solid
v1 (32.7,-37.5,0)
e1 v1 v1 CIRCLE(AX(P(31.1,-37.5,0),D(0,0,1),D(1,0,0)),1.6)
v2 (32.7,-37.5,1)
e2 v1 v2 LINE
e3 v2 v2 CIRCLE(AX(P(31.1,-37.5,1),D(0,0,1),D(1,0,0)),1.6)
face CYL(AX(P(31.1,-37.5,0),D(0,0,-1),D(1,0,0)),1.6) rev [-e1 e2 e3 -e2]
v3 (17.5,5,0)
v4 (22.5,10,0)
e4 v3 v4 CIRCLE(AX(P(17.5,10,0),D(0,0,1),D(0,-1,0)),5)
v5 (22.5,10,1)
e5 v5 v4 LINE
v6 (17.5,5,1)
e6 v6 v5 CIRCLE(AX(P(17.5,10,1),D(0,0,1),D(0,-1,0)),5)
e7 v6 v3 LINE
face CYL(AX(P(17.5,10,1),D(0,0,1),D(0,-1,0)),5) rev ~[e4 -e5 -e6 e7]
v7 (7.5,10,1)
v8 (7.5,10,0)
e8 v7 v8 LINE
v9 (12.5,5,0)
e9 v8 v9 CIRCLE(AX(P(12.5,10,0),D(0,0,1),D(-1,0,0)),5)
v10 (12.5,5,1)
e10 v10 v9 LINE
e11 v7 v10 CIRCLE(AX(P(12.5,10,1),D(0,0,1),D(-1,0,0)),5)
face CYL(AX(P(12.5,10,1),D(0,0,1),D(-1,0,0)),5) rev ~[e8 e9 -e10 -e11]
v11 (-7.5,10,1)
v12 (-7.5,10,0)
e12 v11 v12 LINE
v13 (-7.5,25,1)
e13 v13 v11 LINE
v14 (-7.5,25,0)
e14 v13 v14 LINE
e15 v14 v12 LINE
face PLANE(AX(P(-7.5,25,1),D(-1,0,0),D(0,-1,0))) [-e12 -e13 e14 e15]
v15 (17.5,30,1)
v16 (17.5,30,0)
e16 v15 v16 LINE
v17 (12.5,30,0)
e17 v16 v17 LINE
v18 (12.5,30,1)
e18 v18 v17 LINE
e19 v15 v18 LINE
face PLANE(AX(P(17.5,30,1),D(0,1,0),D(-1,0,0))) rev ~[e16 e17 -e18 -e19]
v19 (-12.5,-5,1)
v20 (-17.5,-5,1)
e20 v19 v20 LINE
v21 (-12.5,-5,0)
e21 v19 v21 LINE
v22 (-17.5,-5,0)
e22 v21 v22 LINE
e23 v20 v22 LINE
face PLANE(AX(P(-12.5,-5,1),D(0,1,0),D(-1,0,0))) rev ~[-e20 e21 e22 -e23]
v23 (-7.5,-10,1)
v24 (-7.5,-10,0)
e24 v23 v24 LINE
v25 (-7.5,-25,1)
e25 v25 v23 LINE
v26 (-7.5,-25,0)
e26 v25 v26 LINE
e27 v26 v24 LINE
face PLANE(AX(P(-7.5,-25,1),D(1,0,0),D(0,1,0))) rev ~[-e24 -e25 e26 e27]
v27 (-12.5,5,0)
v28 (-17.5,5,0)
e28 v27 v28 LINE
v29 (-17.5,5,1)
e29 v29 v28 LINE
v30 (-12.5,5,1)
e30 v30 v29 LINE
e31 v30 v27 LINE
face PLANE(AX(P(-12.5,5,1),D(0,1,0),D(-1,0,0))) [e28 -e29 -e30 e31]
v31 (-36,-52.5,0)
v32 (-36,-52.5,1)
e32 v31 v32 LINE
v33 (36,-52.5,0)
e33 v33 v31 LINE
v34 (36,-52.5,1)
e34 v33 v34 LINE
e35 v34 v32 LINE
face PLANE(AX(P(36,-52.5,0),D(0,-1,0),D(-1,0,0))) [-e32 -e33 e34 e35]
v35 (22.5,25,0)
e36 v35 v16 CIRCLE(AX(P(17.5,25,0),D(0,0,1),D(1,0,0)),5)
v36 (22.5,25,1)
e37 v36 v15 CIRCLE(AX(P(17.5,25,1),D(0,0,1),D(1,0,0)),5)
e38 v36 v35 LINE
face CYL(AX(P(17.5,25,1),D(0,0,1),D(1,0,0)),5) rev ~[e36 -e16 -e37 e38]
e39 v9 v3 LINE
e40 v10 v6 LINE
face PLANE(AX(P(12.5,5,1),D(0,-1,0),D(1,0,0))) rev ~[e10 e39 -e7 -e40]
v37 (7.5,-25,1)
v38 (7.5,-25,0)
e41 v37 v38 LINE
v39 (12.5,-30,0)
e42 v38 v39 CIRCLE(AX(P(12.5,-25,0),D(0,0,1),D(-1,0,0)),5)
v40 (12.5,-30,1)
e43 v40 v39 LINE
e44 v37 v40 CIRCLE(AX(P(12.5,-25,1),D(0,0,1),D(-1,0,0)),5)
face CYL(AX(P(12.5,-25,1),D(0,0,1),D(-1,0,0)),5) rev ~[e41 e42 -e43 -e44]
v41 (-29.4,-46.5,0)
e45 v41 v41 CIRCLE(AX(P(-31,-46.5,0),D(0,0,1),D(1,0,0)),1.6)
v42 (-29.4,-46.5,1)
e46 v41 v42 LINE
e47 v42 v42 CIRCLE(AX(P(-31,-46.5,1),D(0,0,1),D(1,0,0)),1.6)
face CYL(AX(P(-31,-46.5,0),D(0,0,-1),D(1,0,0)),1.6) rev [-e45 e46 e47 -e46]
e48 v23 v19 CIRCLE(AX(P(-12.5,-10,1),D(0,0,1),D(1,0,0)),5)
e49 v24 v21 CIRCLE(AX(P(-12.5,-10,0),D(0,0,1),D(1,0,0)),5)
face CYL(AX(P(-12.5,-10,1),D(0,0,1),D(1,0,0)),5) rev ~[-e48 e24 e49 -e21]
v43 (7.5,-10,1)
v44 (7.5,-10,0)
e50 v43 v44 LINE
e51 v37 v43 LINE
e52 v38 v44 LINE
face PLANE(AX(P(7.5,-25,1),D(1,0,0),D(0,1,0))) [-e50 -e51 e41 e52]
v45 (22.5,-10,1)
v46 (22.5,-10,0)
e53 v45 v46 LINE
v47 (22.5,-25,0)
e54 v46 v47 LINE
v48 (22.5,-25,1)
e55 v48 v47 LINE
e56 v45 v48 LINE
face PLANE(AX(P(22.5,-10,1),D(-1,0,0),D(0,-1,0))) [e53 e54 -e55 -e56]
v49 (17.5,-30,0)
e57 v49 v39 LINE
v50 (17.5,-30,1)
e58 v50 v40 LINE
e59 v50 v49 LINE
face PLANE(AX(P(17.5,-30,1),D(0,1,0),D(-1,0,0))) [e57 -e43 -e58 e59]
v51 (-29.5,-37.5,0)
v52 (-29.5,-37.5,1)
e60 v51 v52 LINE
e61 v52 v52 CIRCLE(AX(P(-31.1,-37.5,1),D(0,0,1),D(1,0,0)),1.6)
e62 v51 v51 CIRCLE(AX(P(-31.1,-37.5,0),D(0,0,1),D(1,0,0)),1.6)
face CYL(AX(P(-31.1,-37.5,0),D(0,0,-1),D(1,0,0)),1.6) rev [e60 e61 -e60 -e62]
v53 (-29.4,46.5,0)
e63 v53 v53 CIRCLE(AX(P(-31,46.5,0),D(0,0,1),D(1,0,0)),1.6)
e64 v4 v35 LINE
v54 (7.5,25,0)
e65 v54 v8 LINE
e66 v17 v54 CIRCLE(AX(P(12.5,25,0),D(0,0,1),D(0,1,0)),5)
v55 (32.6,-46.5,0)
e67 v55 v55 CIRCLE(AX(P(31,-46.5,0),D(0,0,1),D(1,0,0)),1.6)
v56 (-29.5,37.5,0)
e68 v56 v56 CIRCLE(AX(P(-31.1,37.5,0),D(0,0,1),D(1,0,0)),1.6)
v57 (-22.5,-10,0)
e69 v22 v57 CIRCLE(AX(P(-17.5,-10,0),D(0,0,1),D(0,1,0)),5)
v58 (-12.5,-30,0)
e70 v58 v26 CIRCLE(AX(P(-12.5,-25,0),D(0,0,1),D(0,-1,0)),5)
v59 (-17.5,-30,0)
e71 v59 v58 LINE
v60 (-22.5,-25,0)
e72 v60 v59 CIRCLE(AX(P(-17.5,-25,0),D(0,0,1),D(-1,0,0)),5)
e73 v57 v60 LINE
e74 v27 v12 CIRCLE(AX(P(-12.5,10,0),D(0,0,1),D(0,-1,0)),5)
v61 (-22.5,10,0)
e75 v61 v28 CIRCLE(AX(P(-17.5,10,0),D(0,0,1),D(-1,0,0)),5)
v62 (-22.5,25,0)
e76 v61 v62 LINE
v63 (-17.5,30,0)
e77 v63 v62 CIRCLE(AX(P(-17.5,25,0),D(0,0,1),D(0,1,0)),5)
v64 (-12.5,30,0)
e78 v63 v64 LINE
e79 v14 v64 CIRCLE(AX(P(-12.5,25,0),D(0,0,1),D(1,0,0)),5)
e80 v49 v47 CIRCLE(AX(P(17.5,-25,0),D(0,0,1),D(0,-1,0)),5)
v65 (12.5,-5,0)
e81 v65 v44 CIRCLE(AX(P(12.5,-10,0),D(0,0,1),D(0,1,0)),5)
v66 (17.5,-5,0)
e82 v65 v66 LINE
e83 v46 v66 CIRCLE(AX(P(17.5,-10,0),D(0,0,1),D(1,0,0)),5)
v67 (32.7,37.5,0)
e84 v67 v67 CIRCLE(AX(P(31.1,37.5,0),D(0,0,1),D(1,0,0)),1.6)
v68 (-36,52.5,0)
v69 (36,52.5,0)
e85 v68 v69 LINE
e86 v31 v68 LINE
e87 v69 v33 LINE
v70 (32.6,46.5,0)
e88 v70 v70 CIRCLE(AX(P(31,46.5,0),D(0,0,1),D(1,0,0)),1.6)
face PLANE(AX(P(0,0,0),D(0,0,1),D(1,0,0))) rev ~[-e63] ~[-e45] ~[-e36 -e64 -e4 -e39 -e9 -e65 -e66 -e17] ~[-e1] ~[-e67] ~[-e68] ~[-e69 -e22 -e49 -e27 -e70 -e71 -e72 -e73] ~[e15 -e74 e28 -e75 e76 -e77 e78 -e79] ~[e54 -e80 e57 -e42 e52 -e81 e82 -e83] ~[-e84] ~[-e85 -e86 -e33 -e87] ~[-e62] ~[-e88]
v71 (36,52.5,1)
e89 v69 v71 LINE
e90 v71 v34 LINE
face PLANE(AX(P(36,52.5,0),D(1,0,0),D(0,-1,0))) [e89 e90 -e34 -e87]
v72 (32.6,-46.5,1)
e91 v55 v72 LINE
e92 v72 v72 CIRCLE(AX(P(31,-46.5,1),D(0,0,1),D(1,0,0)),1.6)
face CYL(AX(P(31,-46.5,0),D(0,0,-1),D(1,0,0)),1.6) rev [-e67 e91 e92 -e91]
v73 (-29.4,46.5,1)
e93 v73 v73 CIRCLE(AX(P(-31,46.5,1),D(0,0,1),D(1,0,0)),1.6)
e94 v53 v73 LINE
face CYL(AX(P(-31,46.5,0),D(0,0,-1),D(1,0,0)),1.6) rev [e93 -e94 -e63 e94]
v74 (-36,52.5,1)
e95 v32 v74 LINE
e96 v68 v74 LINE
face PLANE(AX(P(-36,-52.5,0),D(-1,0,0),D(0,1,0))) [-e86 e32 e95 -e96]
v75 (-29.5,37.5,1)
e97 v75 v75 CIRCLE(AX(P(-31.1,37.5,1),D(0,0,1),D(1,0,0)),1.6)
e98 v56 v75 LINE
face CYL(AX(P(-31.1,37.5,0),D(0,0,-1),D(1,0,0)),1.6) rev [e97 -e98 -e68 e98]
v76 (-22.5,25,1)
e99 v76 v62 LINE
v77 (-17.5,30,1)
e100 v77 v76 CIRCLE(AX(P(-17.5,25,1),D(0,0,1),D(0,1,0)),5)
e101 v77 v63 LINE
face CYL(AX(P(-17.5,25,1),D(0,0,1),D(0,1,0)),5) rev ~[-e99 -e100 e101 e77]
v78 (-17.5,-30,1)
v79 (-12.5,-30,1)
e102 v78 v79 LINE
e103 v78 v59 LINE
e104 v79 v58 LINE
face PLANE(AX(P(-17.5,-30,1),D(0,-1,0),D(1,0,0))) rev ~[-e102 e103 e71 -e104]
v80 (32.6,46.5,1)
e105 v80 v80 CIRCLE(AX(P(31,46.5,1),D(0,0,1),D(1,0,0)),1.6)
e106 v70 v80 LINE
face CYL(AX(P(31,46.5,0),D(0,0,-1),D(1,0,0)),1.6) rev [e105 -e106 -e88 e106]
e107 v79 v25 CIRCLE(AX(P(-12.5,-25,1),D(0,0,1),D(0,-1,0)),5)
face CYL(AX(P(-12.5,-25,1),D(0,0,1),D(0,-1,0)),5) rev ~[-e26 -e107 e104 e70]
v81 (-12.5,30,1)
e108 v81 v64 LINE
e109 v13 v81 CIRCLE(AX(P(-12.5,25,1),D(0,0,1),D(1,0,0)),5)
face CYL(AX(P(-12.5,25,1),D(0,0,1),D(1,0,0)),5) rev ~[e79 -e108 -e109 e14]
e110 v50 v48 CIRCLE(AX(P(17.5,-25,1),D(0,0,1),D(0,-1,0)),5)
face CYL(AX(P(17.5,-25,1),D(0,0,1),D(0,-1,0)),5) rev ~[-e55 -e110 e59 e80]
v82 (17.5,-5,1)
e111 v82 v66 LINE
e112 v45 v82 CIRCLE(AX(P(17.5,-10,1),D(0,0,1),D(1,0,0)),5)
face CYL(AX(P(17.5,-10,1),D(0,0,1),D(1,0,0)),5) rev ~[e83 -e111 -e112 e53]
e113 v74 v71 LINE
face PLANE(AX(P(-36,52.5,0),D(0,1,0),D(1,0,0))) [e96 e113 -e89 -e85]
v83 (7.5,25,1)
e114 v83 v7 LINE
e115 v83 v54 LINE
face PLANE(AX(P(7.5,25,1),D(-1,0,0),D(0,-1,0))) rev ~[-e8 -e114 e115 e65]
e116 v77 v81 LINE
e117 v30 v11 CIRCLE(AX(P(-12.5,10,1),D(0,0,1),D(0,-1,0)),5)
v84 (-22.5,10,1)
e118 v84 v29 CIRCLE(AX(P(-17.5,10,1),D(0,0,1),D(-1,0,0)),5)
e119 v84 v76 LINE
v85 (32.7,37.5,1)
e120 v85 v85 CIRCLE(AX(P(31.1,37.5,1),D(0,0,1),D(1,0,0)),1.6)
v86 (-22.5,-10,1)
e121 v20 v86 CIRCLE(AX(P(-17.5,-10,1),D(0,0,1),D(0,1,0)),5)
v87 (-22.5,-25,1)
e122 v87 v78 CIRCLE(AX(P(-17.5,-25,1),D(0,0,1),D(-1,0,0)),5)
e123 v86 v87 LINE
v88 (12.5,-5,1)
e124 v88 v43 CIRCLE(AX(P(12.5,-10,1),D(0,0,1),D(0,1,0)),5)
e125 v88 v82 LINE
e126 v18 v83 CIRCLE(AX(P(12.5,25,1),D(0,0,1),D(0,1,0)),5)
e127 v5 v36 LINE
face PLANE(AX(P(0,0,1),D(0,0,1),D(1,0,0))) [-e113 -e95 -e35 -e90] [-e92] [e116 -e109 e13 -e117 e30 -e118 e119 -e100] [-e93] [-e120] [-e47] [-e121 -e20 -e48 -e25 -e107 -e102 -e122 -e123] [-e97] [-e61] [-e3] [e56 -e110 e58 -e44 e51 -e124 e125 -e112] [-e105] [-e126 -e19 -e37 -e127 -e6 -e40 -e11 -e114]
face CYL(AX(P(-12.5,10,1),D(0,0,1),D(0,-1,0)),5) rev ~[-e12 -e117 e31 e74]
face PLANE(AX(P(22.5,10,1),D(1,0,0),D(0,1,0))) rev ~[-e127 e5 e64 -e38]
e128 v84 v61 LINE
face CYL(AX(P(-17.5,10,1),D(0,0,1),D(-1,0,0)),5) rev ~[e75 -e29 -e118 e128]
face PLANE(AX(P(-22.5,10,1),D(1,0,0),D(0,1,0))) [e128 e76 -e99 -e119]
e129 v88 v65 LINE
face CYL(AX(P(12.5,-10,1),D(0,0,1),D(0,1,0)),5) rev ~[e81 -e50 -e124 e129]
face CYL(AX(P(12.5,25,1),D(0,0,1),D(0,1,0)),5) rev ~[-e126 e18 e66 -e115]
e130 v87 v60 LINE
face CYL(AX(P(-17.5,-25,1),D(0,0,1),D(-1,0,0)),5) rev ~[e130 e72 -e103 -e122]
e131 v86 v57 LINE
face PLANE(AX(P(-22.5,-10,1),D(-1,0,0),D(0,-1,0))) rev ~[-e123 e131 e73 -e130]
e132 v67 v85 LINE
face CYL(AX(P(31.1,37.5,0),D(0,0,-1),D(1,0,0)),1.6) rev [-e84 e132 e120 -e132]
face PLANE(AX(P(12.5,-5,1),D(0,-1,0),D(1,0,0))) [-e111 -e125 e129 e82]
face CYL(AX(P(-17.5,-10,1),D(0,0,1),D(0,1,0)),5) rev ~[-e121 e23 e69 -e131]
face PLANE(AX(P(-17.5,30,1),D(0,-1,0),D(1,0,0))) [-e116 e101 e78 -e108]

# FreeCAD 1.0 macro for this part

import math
import FreeCAD as App
import Part
import Sketcher


def add_polygon(sketch, points):
    """Adds a closed chain of lines whose ends are joined by coincident constraints."""
    first, n = sketch.GeometryCount, len(points)
    for a, b in zip(points, points[1:] + points[:1]):
        sketch.addGeometry(Part.LineSegment(App.Vector(*a, 0), App.Vector(*b, 0)), False)
    for i in range(n):
        sketch.addConstraint(Sketcher.Constraint("Coincident", first + i, 2, first + (i + 1) % n, 1))

doc = App.newDocument("Part")
body = doc.addObject("PartDesign::Body", "Body")

sketch1 = doc.addObject("Sketcher::SketchObject", "Sketch")
body.addObject(sketch1)
sketch1.AttachmentSupport = (doc.XY_Plane, [""])
sketch1.MapMode = "FlatFace"
add_polygon(sketch1, [(36, 52.5), (-36, 52.5), (-36, -52.5), (36, -52.5)])
sketch1.addGeometry(Part.Circle(App.Vector(-31, -46.5, 0), App.Vector(0, 0, 1), 1.6), False)
sketch1.addGeometry(Part.Circle(App.Vector(-31.1, -37.5, 0), App.Vector(0, 0, 1), 1.6), False)
sketch1.addGeometry(Part.Circle(App.Vector(31, -46.5, 0), App.Vector(0, 0, 1), 1.6), False)
sketch1.addGeometry(Part.Circle(App.Vector(31.1, -37.5, 0), App.Vector(0, 0, 1), 1.6), False)
sketch1.addGeometry(Part.Circle(App.Vector(-31.1, 37.5, 0), App.Vector(0, 0, 1), 1.6), False)
sketch1.addGeometry(Part.Circle(App.Vector(-31, 46.5, 0), App.Vector(0, 0, 1), 1.6), False)
sketch1.addGeometry(Part.Circle(App.Vector(31.1, 37.5, 0), App.Vector(0, 0, 1), 1.6), False)
sketch1.addGeometry(Part.Circle(App.Vector(31, 46.5, 0), App.Vector(0, 0, 1), 1.6), False)
sketch1.addConstraint(Sketcher.Constraint("Horizontal", 0))
sketch1.addConstraint(Sketcher.Constraint("Vertical", 1))
sketch1.addConstraint(Sketcher.Constraint("Horizontal", 2))
sketch1.addConstraint(Sketcher.Constraint("Vertical", 3))
sketch1.addConstraint(Sketcher.Constraint("Equal", 4, 5))
sketch1.addConstraint(Sketcher.Constraint("Equal", 5, 6))
sketch1.addConstraint(Sketcher.Constraint("Equal", 6, 7))
sketch1.addConstraint(Sketcher.Constraint("Equal", 7, 8))
sketch1.addConstraint(Sketcher.Constraint("Equal", 8, 9))
sketch1.addConstraint(Sketcher.Constraint("Equal", 9, 10))
sketch1.addConstraint(Sketcher.Constraint("Equal", 10, 11))
sketch1.addConstraint(Sketcher.Constraint("Symmetric", 7, 3, 8, 3, -1, 1))
sketch1.addConstraint(Sketcher.Constraint("Symmetric", 6, 3, 9, 3, -1, 1))
sketch1.addConstraint(Sketcher.Constraint("Symmetric", 5, 3, 10, 3, -1, 1))
sketch1.addConstraint(Sketcher.Constraint("Symmetric", 4, 3, 11, 3, -1, 1))
sketch1.addConstraint(Sketcher.Constraint("Symmetric", 0, 2, 2, 2, -1, 1))
sketch1.addConstraint(Sketcher.Constraint("Symmetric", 4, 3, 6, 3, -2))
sketch1.addConstraint(Sketcher.Constraint("Symmetric", 5, 3, 7, 3, -2))
sketch1.addConstraint(Sketcher.Constraint("Diameter", 4, 3.2))
sketch1.addConstraint(Sketcher.Constraint("DistanceX", 0, 2, 0, 1, 72.0))
sketch1.addConstraint(Sketcher.Constraint("DistanceY", 1, 2, 1, 1, 105.0))
sketch1.addConstraint(Sketcher.Constraint("DistanceX", 0, 2, 9, 3, 5.0))
sketch1.addConstraint(Sketcher.Constraint("DistanceY", 9, 3, 0, 2, 6.0))
sketch1.addConstraint(Sketcher.Constraint("DistanceY", 8, 3, 0, 2, 15.0))
sketch1.addConstraint(Sketcher.Constraint("DistanceX", 0, 2, 8, 3, 4.9))
pad1 = doc.addObject("PartDesign::Pad", "Pad")
body.addObject(pad1)
pad1.Profile = sketch1
pad1.Length = 1

sketch2 = doc.addObject("Sketcher::SketchObject", "Sketch001")
body.addObject(sketch2)
sketch2.AttachmentSupport = (doc.XY_Plane, [""])
sketch2.MapMode = "FlatFace"
sketch2.AttachmentOffset = App.Placement(App.Vector(0, 0, 1), App.Rotation())
sketch2.addGeometry(Part.LineSegment(App.Vector(-12, 30, 0), App.Vector(-18, 30, 0)), False)
sketch2.addGeometry(Part.ArcOfCircle(Part.Circle(App.Vector(-18, 25, 0), App.Vector(0, 0, 1), 5), math.radians(90), math.radians(180)), False)
sketch2.addGeometry(Part.LineSegment(App.Vector(-22, 25, 0), App.Vector(-22, 10, 0)), False)
sketch2.addGeometry(Part.ArcOfCircle(Part.Circle(App.Vector(-18, 10, 0), App.Vector(0, 0, 1), 5), math.radians(180), math.radians(270)), False)
sketch2.addGeometry(Part.LineSegment(App.Vector(-18, 5, 0), App.Vector(-12, 5, 0)), False)
sketch2.addGeometry(Part.ArcOfCircle(Part.Circle(App.Vector(-12, 10, 0), App.Vector(0, 0, 1), 5), math.radians(-90), math.radians(0)), False)
sketch2.addGeometry(Part.LineSegment(App.Vector(-8, 10, 0), App.Vector(-8, 25, 0)), False)
sketch2.addGeometry(Part.ArcOfCircle(Part.Circle(App.Vector(-12, 25, 0), App.Vector(0, 0, 1), 5), math.radians(0), math.radians(90)), False)
sketch2.addGeometry(Part.ArcOfCircle(Part.Circle(App.Vector(18, 25, 0), App.Vector(0, 0, 1), 5), math.radians(0), math.radians(90)), False)
sketch2.addGeometry(Part.LineSegment(App.Vector(18, 30, 0), App.Vector(12, 30, 0)), False)
sketch2.addGeometry(Part.ArcOfCircle(Part.Circle(App.Vector(12, 25, 0), App.Vector(0, 0, 1), 5), math.radians(90), math.radians(180)), False)
sketch2.addGeometry(Part.LineSegment(App.Vector(8, 25, 0), App.Vector(8, 10, 0)), False)
sketch2.addGeometry(Part.ArcOfCircle(Part.Circle(App.Vector(12, 10, 0), App.Vector(0, 0, 1), 5), math.radians(180), math.radians(270)), False)
sketch2.addGeometry(Part.LineSegment(App.Vector(12, 5, 0), App.Vector(18, 5, 0)), False)
sketch2.addGeometry(Part.ArcOfCircle(Part.Circle(App.Vector(18, 10, 0), App.Vector(0, 0, 1), 5), math.radians(-90), math.radians(0)), False)
sketch2.addGeometry(Part.LineSegment(App.Vector(22, 10, 0), App.Vector(22, 25, 0)), False)
sketch2.addGeometry(Part.ArcOfCircle(Part.Circle(App.Vector(-18, -25, 0), App.Vector(0, 0, 1), 5), math.radians(180), math.radians(270)), False)
sketch2.addGeometry(Part.LineSegment(App.Vector(-18, -30, 0), App.Vector(-12, -30, 0)), False)
sketch2.addGeometry(Part.ArcOfCircle(Part.Circle(App.Vector(-12, -25, 0), App.Vector(0, 0, 1), 5), math.radians(-90), math.radians(0)), False)
sketch2.addGeometry(Part.LineSegment(App.Vector(-8, -25, 0), App.Vector(-8, -10, 0)), False)
sketch2.addGeometry(Part.ArcOfCircle(Part.Circle(App.Vector(-12, -10, 0), App.Vector(0, 0, 1), 5), math.radians(0), math.radians(90)), False)
sketch2.addGeometry(Part.LineSegment(App.Vector(-12, -5, 0), App.Vector(-18, -5, 0)), False)
sketch2.addGeometry(Part.ArcOfCircle(Part.Circle(App.Vector(-18, -10, 0), App.Vector(0, 0, 1), 5), math.radians(90), math.radians(180)), False)
sketch2.addGeometry(Part.LineSegment(App.Vector(-22, -10, 0), App.Vector(-22, -25, 0)), False)
sketch2.addGeometry(Part.LineSegment(App.Vector(8, -10, 0), App.Vector(8, -25, 0)), False)
sketch2.addGeometry(Part.ArcOfCircle(Part.Circle(App.Vector(12, -25, 0), App.Vector(0, 0, 1), 5), math.radians(180), math.radians(270)), False)
sketch2.addGeometry(Part.LineSegment(App.Vector(12, -30, 0), App.Vector(18, -30, 0)), False)
sketch2.addGeometry(Part.ArcOfCircle(Part.Circle(App.Vector(18, -25, 0), App.Vector(0, 0, 1), 5), math.radians(-90), math.radians(0)), False)
sketch2.addGeometry(Part.LineSegment(App.Vector(22, -25, 0), App.Vector(22, -10, 0)), False)
sketch2.addGeometry(Part.ArcOfCircle(Part.Circle(App.Vector(18, -10, 0), App.Vector(0, 0, 1), 5), math.radians(0), math.radians(90)), False)
sketch2.addGeometry(Part.LineSegment(App.Vector(18, -5, 0), App.Vector(12, -5, 0)), False)
sketch2.addGeometry(Part.ArcOfCircle(Part.Circle(App.Vector(12, -10, 0), App.Vector(0, 0, 1), 5), math.radians(90), math.radians(180)), False)
sketch2.addConstraint(Sketcher.Constraint("Tangent", 0, 2, 1, 1))
sketch2.addConstraint(Sketcher.Constraint("Tangent", 1, 2, 2, 1))
sketch2.addConstraint(Sketcher.Constraint("Tangent", 2, 2, 3, 1))
sketch2.addConstraint(Sketcher.Constraint("Tangent", 3, 2, 4, 1))
sketch2.addConstraint(Sketcher.Constraint("Tangent", 4, 2, 5, 1))
sketch2.addConstraint(Sketcher.Constraint("Tangent", 5, 2, 6, 1))
sketch2.addConstraint(Sketcher.Constraint("Tangent", 6, 2, 7, 1))
sketch2.addConstraint(Sketcher.Constraint("Tangent", 7, 2, 0, 1))
sketch2.addConstraint(Sketcher.Constraint("Tangent", 8, 2, 9, 1))
sketch2.addConstraint(Sketcher.Constraint("Tangent", 9, 2, 10, 1))
sketch2.addConstraint(Sketcher.Constraint("Tangent", 10, 2, 11, 1))
sketch2.addConstraint(Sketcher.Constraint("Tangent", 11, 2, 12, 1))
sketch2.addConstraint(Sketcher.Constraint("Tangent", 12, 2, 13, 1))
sketch2.addConstraint(Sketcher.Constraint("Tangent", 13, 2, 14, 1))
sketch2.addConstraint(Sketcher.Constraint("Tangent", 14, 2, 15, 1))
sketch2.addConstraint(Sketcher.Constraint("Tangent", 15, 2, 8, 1))
sketch2.addConstraint(Sketcher.Constraint("Tangent", 16, 2, 17, 1))
sketch2.addConstraint(Sketcher.Constraint("Tangent", 17, 2, 18, 1))
sketch2.addConstraint(Sketcher.Constraint("Tangent", 18, 2, 19, 1))
sketch2.addConstraint(Sketcher.Constraint("Tangent", 19, 2, 20, 1))
sketch2.addConstraint(Sketcher.Constraint("Tangent", 20, 2, 21, 1))
sketch2.addConstraint(Sketcher.Constraint("Tangent", 21, 2, 22, 1))
sketch2.addConstraint(Sketcher.Constraint("Tangent", 22, 2, 23, 1))
sketch2.addConstraint(Sketcher.Constraint("Tangent", 23, 2, 16, 1))
sketch2.addConstraint(Sketcher.Constraint("Tangent", 24, 2, 25, 1))
sketch2.addConstraint(Sketcher.Constraint("Tangent", 25, 2, 26, 1))
sketch2.addConstraint(Sketcher.Constraint("Tangent", 26, 2, 27, 1))
sketch2.addConstraint(Sketcher.Constraint("Tangent", 27, 2, 28, 1))
sketch2.addConstraint(Sketcher.Constraint("Tangent", 28, 2, 29, 1))
sketch2.addConstraint(Sketcher.Constraint("Tangent", 29, 2, 30, 1))
sketch2.addConstraint(Sketcher.Constraint("Tangent", 30, 2, 31, 1))
sketch2.addConstraint(Sketcher.Constraint("Tangent", 31, 2, 24, 1))
sketch2.addConstraint(Sketcher.Constraint("Horizontal", 0))
sketch2.addConstraint(Sketcher.Constraint("Vertical", 2))
sketch2.addConstraint(Sketcher.Constraint("Horizontal", 4))
sketch2.addConstraint(Sketcher.Constraint("Vertical", 6))
sketch2.addConstraint(Sketcher.Constraint("Horizontal", 9))
sketch2.addConstraint(Sketcher.Constraint("Vertical", 11))
sketch2.addConstraint(Sketcher.Constraint("Horizontal", 13))
sketch2.addConstraint(Sketcher.Constraint("Vertical", 15))
sketch2.addConstraint(Sketcher.Constraint("Horizontal", 17))
sketch2.addConstraint(Sketcher.Constraint("Vertical", 19))
sketch2.addConstraint(Sketcher.Constraint("Horizontal", 21))
sketch2.addConstraint(Sketcher.Constraint("Vertical", 23))
sketch2.addConstraint(Sketcher.Constraint("Vertical", 24))
sketch2.addConstraint(Sketcher.Constraint("Horizontal", 26))
sketch2.addConstraint(Sketcher.Constraint("Vertical", 28))
sketch2.addConstraint(Sketcher.Constraint("Horizontal", 30))
sketch2.addConstraint(Sketcher.Constraint("Equal", 1, 3))
sketch2.addConstraint(Sketcher.Constraint("Equal", 3, 5))
sketch2.addConstraint(Sketcher.Constraint("Equal", 5, 7))
sketch2.addConstraint(Sketcher.Constraint("Equal", 7, 8))
sketch2.addConstraint(Sketcher.Constraint("Equal", 8, 10))
sketch2.addConstraint(Sketcher.Constraint("Equal", 10, 12))
sketch2.addConstraint(Sketcher.Constraint("Equal", 12, 14))
sketch2.addConstraint(Sketcher.Constraint("Equal", 14, 16))
sketch2.addConstraint(Sketcher.Constraint("Equal", 16, 18))
sketch2.addConstraint(Sketcher.Constraint("Equal", 18, 20))
sketch2.addConstraint(Sketcher.Constraint("Equal", 20, 22))
sketch2.addConstraint(Sketcher.Constraint("Equal", 22, 25))
sketch2.addConstraint(Sketcher.Constraint("Equal", 25, 27))
sketch2.addConstraint(Sketcher.Constraint("Equal", 27, 29))
sketch2.addConstraint(Sketcher.Constraint("Equal", 29, 31))
sketch2.addConstraint(Sketcher.Constraint("Symmetric", 8, 3, 16, 3, -1, 1))
sketch2.addConstraint(Sketcher.Constraint("Symmetric", 12, 3, 20, 3, -1, 1))
sketch2.addConstraint(Sketcher.Constraint("Symmetric", 7, 3, 25, 3, -1, 1))
sketch2.addConstraint(Sketcher.Constraint("Symmetric", 3, 3, 29, 3, -1, 1))
sketch2.addConstraint(Sketcher.Constraint("Symmetric", 1, 3, 8, 3, -2))
sketch2.addConstraint(Sketcher.Constraint("Symmetric", 5, 3, 12, 3, -2))
sketch2.addConstraint(Sketcher.Constraint("Radius", 1, 5.0))
sketch2.addConstraint(Sketcher.Constraint("DistanceX", 0, 2, 0, 1, 5.0))
sketch2.addConstraint(Sketcher.Constraint("DistanceY", 2, 2, 2, 1, 15.0))
sketch2.addConstraint(Sketcher.Constraint("DistanceY", -1, 1, 1, 3, 25.0))
sketch2.addConstraint(Sketcher.Constraint("DistanceX", 7, 3, 10, 3, 25.0))
pocket1 = doc.addObject("PartDesign::Pocket", "Pocket")
body.addObject(pocket1)
pocket1.Profile = sketch2
pocket1.Length = 1

doc.recompute()
